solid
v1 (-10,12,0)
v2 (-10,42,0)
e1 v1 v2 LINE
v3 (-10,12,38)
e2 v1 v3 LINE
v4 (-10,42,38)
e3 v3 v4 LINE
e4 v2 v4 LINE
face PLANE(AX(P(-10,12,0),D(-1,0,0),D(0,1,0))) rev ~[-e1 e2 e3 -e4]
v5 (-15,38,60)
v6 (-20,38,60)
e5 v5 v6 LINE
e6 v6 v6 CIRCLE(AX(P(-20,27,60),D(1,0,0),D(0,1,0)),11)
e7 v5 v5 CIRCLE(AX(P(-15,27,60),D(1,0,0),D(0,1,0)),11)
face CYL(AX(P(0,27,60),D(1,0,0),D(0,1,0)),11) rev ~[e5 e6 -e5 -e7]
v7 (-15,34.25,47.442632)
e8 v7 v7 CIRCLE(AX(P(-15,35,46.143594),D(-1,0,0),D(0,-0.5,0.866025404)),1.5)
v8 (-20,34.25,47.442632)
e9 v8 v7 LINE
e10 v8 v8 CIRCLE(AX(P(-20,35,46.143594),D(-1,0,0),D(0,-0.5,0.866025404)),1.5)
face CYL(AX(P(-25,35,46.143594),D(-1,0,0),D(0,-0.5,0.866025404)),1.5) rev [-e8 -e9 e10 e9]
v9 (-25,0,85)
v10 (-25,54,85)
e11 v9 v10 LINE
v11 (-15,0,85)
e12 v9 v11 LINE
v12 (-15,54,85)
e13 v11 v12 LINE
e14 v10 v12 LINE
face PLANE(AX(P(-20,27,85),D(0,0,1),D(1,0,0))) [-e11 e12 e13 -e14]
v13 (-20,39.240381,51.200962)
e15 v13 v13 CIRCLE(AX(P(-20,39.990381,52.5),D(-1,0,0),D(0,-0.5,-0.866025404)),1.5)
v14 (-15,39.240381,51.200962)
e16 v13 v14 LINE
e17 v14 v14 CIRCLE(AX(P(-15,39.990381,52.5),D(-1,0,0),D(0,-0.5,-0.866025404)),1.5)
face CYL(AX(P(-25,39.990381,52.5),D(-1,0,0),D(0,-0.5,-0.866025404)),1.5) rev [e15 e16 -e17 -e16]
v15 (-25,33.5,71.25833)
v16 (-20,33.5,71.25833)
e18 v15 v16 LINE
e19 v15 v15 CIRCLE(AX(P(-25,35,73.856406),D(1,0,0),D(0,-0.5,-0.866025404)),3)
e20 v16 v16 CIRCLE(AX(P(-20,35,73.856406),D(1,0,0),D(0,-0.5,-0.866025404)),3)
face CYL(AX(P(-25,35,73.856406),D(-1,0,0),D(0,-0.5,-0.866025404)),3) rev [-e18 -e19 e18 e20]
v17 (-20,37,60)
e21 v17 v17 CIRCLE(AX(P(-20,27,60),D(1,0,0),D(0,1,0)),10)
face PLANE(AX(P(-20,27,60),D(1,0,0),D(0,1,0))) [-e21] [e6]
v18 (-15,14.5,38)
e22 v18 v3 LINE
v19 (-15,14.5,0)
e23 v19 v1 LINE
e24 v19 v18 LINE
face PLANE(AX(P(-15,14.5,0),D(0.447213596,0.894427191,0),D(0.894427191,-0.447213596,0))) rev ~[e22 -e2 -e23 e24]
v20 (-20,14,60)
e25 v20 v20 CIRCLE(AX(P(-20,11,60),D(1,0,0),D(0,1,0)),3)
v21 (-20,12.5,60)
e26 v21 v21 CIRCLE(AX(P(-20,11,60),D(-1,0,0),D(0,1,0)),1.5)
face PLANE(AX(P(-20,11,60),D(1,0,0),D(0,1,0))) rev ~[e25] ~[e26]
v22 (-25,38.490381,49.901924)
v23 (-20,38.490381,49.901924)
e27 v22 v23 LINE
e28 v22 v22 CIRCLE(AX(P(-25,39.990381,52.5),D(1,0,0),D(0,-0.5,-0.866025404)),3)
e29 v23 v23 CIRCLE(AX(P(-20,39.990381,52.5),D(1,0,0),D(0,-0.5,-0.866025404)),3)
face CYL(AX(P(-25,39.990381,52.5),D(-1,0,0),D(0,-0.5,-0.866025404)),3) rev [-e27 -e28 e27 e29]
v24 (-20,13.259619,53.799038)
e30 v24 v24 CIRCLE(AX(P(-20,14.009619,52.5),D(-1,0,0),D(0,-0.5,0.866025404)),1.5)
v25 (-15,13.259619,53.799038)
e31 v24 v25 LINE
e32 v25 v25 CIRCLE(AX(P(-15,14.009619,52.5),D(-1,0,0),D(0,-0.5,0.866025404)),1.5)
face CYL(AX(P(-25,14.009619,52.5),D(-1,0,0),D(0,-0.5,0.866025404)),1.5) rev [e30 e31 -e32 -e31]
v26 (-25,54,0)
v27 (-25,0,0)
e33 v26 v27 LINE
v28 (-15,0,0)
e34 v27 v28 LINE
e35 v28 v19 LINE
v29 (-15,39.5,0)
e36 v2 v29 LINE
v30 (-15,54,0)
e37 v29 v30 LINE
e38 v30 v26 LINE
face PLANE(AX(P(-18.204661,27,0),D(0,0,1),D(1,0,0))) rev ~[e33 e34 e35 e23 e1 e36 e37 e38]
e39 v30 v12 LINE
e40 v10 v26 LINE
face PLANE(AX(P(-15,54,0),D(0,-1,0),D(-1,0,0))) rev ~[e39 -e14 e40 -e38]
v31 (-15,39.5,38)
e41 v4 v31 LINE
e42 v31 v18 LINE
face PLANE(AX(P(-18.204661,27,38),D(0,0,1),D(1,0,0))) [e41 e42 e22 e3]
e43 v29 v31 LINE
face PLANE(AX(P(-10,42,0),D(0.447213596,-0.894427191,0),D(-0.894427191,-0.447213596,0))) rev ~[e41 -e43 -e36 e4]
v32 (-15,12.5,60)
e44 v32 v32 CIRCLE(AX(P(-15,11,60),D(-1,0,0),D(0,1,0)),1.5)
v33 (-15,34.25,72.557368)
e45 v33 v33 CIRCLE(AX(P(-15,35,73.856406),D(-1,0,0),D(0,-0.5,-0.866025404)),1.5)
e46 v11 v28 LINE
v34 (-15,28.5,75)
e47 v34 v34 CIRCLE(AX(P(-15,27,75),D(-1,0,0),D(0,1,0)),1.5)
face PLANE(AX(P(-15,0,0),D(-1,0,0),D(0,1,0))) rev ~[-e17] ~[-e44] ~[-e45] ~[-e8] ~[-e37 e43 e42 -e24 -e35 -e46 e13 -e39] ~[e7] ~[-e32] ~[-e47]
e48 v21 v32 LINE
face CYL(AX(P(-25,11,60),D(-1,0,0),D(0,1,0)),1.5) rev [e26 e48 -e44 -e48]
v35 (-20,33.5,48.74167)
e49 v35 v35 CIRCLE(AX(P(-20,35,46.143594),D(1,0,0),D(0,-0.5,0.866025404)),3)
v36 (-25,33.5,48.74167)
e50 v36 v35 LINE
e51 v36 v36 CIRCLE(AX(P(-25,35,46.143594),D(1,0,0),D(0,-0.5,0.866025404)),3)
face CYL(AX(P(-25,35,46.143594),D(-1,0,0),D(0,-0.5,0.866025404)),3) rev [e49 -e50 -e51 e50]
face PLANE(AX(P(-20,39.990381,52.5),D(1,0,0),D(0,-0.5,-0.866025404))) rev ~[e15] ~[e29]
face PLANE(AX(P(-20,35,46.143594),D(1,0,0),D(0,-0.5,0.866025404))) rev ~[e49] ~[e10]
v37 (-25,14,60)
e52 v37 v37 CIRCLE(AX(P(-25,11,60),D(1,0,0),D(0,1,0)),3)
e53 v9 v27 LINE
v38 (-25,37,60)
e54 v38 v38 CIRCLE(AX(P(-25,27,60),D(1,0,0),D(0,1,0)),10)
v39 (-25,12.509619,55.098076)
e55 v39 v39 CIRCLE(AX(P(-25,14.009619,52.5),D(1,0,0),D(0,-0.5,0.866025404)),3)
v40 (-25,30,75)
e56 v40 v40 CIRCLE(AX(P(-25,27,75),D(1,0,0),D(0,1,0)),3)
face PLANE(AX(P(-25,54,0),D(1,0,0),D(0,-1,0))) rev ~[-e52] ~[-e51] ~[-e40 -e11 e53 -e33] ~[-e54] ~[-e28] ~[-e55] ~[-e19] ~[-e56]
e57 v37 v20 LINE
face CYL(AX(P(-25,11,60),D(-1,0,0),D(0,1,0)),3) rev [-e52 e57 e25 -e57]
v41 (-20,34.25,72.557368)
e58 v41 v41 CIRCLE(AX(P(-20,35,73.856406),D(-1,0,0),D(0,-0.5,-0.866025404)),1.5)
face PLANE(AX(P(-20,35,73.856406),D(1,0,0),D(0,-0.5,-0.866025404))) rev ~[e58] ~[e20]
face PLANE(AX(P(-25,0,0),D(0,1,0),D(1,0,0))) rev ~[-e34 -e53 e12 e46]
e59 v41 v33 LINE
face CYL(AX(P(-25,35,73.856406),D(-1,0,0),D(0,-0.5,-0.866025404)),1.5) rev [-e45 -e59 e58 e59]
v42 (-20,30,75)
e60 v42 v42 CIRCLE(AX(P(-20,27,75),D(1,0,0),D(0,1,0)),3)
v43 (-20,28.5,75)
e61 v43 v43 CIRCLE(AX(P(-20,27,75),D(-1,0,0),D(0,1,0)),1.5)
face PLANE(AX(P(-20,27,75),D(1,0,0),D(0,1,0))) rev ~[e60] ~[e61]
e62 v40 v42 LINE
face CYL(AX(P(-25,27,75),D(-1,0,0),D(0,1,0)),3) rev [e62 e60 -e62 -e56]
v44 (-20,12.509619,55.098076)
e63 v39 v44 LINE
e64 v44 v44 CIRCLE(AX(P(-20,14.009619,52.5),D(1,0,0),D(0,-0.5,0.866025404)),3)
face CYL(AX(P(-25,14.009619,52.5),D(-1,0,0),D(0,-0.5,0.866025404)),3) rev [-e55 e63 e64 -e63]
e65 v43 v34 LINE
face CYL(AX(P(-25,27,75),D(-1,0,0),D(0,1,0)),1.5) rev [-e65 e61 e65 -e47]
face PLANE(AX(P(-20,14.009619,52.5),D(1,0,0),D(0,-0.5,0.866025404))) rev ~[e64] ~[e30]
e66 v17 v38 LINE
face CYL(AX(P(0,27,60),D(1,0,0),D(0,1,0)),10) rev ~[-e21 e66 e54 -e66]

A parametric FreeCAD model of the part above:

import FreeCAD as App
import Part
import Sketcher
from FreeCAD import Vector

doc = App.newDocument("Part")
body = doc.addObject("PartDesign::Body", "Body")

sketch1 = body.newObject("Sketcher::SketchObject", "Sketch")
sketch1.AttachmentSupport = (doc.getObject("XY_Plane"), [""])
sketch1.MapMode = "FlatFace"
sketch1.addGeometry(Part.LineSegment(Vector(-15, 0, 0), Vector(-15, 14, 0)), False)
sketch1.addGeometry(Part.LineSegment(Vector(-15, 14, 0), Vector(-10, 12, 0)), False)
sketch1.addGeometry(Part.LineSegment(Vector(-10, 12, 0), Vector(-10, 42, 0)), False)
sketch1.addGeometry(Part.LineSegment(Vector(-10, 42, 0), Vector(-15, 40, 0)), False)
sketch1.addGeometry(Part.LineSegment(Vector(-15, 40, 0), Vector(-15, 54, 0)), False)
sketch1.addGeometry(Part.LineSegment(Vector(-15, 54, 0), Vector(-25, 54, 0)), False)
sketch1.addGeometry(Part.LineSegment(Vector(-25, 54, 0), Vector(-25, 0, 0)), False)
sketch1.addGeometry(Part.LineSegment(Vector(-25, 0, 0), Vector(-15, 0, 0)), False)
sketch1.addConstraint(Sketcher.Constraint("Coincident", 0, 2, 1, 1))
sketch1.addConstraint(Sketcher.Constraint("Coincident", 1, 2, 2, 1))
sketch1.addConstraint(Sketcher.Constraint("Coincident", 2, 2, 3, 1))
sketch1.addConstraint(Sketcher.Constraint("Coincident", 3, 2, 4, 1))
sketch1.addConstraint(Sketcher.Constraint("Coincident", 4, 2, 5, 1))
sketch1.addConstraint(Sketcher.Constraint("Coincident", 5, 2, 6, 1))
sketch1.addConstraint(Sketcher.Constraint("Coincident", 6, 2, 7, 1))
sketch1.addConstraint(Sketcher.Constraint("Coincident", 7, 2, 0, 1))
sketch1.addConstraint(Sketcher.Constraint("Vertical", 0))
sketch1.addConstraint(Sketcher.Constraint("Vertical", 2))
sketch1.addConstraint(Sketcher.Constraint("Vertical", 4))
sketch1.addConstraint(Sketcher.Constraint("Horizontal", 5))
sketch1.addConstraint(Sketcher.Constraint("Vertical", 6))
sketch1.addConstraint(Sketcher.Constraint("Horizontal", 7))
sketch1.addConstraint(Sketcher.Constraint("PointOnObject", 6, 2, -1))
sketch1.addConstraint(Sketcher.Constraint("Vertical", 0, 2, 3, 2))
sketch1.addConstraint(Sketcher.Constraint("Equal", 0, 4))
sketch1.addConstraint(Sketcher.Constraint("Equal", 1, 3))
sketch1.addConstraint(Sketcher.Constraint("DistanceX", 5, 2, 5, 1, 10.0))
sketch1.addConstraint(Sketcher.Constraint("DistanceY", 2, 1, 2, 2, 30.0))
sketch1.addConstraint(Sketcher.Constraint("DistanceY", 6, 2, 6, 1, 54.0))
sketch1.addConstraint(Sketcher.Constraint("DistanceY", 0, 1, 0, 2, 14.5))
sketch1.addConstraint(Sketcher.Constraint("DistanceX", 0, 2, -1, 1, 15.0))
sketch1.addConstraint(Sketcher.Constraint("DistanceX", 1, 2, -1, 1, 10.0))
pad1 = body.newObject("PartDesign::Pad", "Pad")
pad1.Profile = sketch1
pad1.Length = 38

sketch2 = body.newObject("Sketcher::SketchObject", "Sketch001")
sketch2.AttachmentSupport = (doc.getObject("XY_Plane"), [""])
sketch2.MapMode = "FlatFace"
sketch2.addGeometry(Part.LineSegment(Vector(-25, 54, 0), Vector(-25, 0, 0)), False)
sketch2.addGeometry(Part.LineSegment(Vector(-25, 0, 0), Vector(-15, 0, 0)), False)
sketch2.addGeometry(Part.LineSegment(Vector(-15, 0, 0), Vector(-15, 54, 0)), False)
sketch2.addGeometry(Part.LineSegment(Vector(-15, 54, 0), Vector(-25, 54, 0)), False)
sketch2.addConstraint(Sketcher.Constraint("Coincident", 0, 2, 1, 1))
sketch2.addConstraint(Sketcher.Constraint("Coincident", 1, 2, 2, 1))
sketch2.addConstraint(Sketcher.Constraint("Coincident", 2, 2, 3, 1))
sketch2.addConstraint(Sketcher.Constraint("Coincident", 3, 2, 0, 1))
sketch2.addConstraint(Sketcher.Constraint("Vertical", 0))
sketch2.addConstraint(Sketcher.Constraint("Horizontal", 1))
sketch2.addConstraint(Sketcher.Constraint("Vertical", 2))
sketch2.addConstraint(Sketcher.Constraint("Horizontal", 3))
sketch2.addConstraint(Sketcher.Constraint("PointOnObject", 0, 2, -1))
sketch2.addConstraint(Sketcher.Constraint("DistanceX", 1, 1, 1, 2, 10.0))
sketch2.addConstraint(Sketcher.Constraint("DistanceY", 0, 2, 0, 1, 54.0))
sketch2.addConstraint(Sketcher.Constraint("DistanceX", 0, 2, -1, 1, 25.0))
pad2 = body.newObject("PartDesign::Pad", "Pad001")
pad2.Profile = sketch2
pad2.Length = 85

sketch3 = body.newObject("Sketcher::SketchObject", "Sketch002")
sketch3.AttachmentSupport = (doc.getObject("YZ_Plane"), [""])
sketch3.MapMode = "FlatFace"
sketch3.addGeometry(Part.Circle(Vector(27, 60, 0), Vector(0, 0, 1), 10), False)
sketch3.addConstraint(Sketcher.Constraint("Diameter", 0, 20.0))
sketch3.addConstraint(Sketcher.Constraint("DistanceX", -1, 1, 0, 3, 27.0))
sketch3.addConstraint(Sketcher.Constraint("DistanceY", -1, 1, 0, 3, 60.0))
pocket1 = body.newObject("PartDesign::Pocket", "Pocket")
pocket1.Profile = sketch3
pocket1.Type = "ThroughAll"

sketch4 = body.newObject("Sketcher::SketchObject", "Sketch003")
sketch4.AttachmentSupport = (doc.getObject("YZ_Plane"), [""])
sketch4.MapMode = "FlatFace"
sketch4.AttachmentOffset = App.Placement(Vector(0, 0, -25), App.Rotation())
sketch4.addGeometry(Part.Circle(Vector(27, 75, 0), Vector(0, 0, 1), 1.5), False)
sketch4.addGeometry(Part.Circle(Vector(11, 60, 0), Vector(0, 0, 1), 1.5), False)
sketch4.addConstraint(Sketcher.Constraint("Equal", 0, 1))
sketch4.addConstraint(Sketcher.Constraint("Diameter", 0, 3.0))
sketch4.addConstraint(Sketcher.Constraint("DistanceX", -1, 1, 0, 3, 27.0))
sketch4.addConstraint(Sketcher.Constraint("DistanceY", -1, 1, 0, 3, 75.0))
sketch4.addConstraint(Sketcher.Constraint("DistanceX", -1, 1, 1, 3, 11.0))
sketch4.addConstraint(Sketcher.Constraint("DistanceY", -1, 1, 1, 3, 60.0))
pocket2 = body.newObject("PartDesign::Pocket", "Pocket001")
pocket2.Profile = sketch4
pocket2.Type = "ThroughAll"
pocket2.Reversed = True
doc.recompute()

datumline = body.newObject("PartDesign::Line", "DatumLine")
datumline.Placement = App.Placement(Vector(0, 27, 60), App.Rotation(Vector(0, 0, 1), Vector(1, 0, 0)))
polarpattern = body.newObject("PartDesign::PolarPattern", "PolarPattern")
polarpattern.Originals = [pocket2]
polarpattern.Axis = (datumline, [""])
polarpattern.Angle = 360
polarpattern.Occurrences = 3
body.Tip = polarpattern

sketch5 = body.newObject("Sketcher::SketchObject", "Sketch004")
sketch5.AttachmentSupport = (doc.getObject("YZ_Plane"), [""])
sketch5.MapMode = "FlatFace"
sketch5.AttachmentOffset = App.Placement(Vector(0, 0, -25), App.Rotation())
sketch5.addGeometry(Part.Circle(Vector(27, 75, 0), Vector(0, 0, 1), 3), False)
sketch5.addGeometry(Part.Circle(Vector(11, 60, 0), Vector(0, 0, 1), 3), False)
sketch5.addConstraint(Sketcher.Constraint("Equal", 0, 1))
sketch5.addConstraint(Sketcher.Constraint("Diameter", 0, 6.0))
sketch5.addConstraint(Sketcher.Constraint("DistanceX", -1, 1, 0, 3, 27.0))
sketch5.addConstraint(Sketcher.Constraint("DistanceY", -1, 1, 0, 3, 75.0))
sketch5.addConstraint(Sketcher.Constraint("DistanceX", -1, 1, 1, 3, 11.0))
sketch5.addConstraint(Sketcher.Constraint("DistanceY", -1, 1, 1, 3, 60.0))
pocket3 = body.newObject("PartDesign::Pocket", "Pocket002")
pocket3.Profile = sketch5
pocket3.Length = 5
pocket3.Reversed = True
doc.recompute()

datumline2 = body.newObject("PartDesign::Line", "DatumLine001")
datumline2.Placement = App.Placement(Vector(0, 27, 60), App.Rotation(Vector(0, 0, 1), Vector(1, 0, 0)))
polarpattern2 = body.newObject("PartDesign::PolarPattern", "PolarPattern001")
polarpattern2.Originals = [pocket3]
polarpattern2.Axis = (datumline2, [""])
polarpattern2.Angle = 360
polarpattern2.Occurrences = 3
body.Tip = polarpattern2

sketch6 = body.newObject("Sketcher::SketchObject", "Sketch005")
sketch6.AttachmentSupport = (doc.getObject("YZ_Plane"), [""])
sketch6.MapMode = "FlatFace"
sketch6.addGeometry(Part.Circle(Vector(27, 60, 0), Vector(0, 0, 1), 11), False)
sketch6.addConstraint(Sketcher.Constraint("Diameter", 0, 22.0))
sketch6.addConstraint(Sketcher.Constraint("DistanceX", -1, 1, 0, 3, 27.0))
sketch6.addConstraint(Sketcher.Constraint("DistanceY", -1, 1, 0, 3, 60.0))
pocket4 = body.newObject("PartDesign::Pocket", "Pocket003")
pocket4.Profile = sketch6
pocket4.Length = 20

doc.recompute()
